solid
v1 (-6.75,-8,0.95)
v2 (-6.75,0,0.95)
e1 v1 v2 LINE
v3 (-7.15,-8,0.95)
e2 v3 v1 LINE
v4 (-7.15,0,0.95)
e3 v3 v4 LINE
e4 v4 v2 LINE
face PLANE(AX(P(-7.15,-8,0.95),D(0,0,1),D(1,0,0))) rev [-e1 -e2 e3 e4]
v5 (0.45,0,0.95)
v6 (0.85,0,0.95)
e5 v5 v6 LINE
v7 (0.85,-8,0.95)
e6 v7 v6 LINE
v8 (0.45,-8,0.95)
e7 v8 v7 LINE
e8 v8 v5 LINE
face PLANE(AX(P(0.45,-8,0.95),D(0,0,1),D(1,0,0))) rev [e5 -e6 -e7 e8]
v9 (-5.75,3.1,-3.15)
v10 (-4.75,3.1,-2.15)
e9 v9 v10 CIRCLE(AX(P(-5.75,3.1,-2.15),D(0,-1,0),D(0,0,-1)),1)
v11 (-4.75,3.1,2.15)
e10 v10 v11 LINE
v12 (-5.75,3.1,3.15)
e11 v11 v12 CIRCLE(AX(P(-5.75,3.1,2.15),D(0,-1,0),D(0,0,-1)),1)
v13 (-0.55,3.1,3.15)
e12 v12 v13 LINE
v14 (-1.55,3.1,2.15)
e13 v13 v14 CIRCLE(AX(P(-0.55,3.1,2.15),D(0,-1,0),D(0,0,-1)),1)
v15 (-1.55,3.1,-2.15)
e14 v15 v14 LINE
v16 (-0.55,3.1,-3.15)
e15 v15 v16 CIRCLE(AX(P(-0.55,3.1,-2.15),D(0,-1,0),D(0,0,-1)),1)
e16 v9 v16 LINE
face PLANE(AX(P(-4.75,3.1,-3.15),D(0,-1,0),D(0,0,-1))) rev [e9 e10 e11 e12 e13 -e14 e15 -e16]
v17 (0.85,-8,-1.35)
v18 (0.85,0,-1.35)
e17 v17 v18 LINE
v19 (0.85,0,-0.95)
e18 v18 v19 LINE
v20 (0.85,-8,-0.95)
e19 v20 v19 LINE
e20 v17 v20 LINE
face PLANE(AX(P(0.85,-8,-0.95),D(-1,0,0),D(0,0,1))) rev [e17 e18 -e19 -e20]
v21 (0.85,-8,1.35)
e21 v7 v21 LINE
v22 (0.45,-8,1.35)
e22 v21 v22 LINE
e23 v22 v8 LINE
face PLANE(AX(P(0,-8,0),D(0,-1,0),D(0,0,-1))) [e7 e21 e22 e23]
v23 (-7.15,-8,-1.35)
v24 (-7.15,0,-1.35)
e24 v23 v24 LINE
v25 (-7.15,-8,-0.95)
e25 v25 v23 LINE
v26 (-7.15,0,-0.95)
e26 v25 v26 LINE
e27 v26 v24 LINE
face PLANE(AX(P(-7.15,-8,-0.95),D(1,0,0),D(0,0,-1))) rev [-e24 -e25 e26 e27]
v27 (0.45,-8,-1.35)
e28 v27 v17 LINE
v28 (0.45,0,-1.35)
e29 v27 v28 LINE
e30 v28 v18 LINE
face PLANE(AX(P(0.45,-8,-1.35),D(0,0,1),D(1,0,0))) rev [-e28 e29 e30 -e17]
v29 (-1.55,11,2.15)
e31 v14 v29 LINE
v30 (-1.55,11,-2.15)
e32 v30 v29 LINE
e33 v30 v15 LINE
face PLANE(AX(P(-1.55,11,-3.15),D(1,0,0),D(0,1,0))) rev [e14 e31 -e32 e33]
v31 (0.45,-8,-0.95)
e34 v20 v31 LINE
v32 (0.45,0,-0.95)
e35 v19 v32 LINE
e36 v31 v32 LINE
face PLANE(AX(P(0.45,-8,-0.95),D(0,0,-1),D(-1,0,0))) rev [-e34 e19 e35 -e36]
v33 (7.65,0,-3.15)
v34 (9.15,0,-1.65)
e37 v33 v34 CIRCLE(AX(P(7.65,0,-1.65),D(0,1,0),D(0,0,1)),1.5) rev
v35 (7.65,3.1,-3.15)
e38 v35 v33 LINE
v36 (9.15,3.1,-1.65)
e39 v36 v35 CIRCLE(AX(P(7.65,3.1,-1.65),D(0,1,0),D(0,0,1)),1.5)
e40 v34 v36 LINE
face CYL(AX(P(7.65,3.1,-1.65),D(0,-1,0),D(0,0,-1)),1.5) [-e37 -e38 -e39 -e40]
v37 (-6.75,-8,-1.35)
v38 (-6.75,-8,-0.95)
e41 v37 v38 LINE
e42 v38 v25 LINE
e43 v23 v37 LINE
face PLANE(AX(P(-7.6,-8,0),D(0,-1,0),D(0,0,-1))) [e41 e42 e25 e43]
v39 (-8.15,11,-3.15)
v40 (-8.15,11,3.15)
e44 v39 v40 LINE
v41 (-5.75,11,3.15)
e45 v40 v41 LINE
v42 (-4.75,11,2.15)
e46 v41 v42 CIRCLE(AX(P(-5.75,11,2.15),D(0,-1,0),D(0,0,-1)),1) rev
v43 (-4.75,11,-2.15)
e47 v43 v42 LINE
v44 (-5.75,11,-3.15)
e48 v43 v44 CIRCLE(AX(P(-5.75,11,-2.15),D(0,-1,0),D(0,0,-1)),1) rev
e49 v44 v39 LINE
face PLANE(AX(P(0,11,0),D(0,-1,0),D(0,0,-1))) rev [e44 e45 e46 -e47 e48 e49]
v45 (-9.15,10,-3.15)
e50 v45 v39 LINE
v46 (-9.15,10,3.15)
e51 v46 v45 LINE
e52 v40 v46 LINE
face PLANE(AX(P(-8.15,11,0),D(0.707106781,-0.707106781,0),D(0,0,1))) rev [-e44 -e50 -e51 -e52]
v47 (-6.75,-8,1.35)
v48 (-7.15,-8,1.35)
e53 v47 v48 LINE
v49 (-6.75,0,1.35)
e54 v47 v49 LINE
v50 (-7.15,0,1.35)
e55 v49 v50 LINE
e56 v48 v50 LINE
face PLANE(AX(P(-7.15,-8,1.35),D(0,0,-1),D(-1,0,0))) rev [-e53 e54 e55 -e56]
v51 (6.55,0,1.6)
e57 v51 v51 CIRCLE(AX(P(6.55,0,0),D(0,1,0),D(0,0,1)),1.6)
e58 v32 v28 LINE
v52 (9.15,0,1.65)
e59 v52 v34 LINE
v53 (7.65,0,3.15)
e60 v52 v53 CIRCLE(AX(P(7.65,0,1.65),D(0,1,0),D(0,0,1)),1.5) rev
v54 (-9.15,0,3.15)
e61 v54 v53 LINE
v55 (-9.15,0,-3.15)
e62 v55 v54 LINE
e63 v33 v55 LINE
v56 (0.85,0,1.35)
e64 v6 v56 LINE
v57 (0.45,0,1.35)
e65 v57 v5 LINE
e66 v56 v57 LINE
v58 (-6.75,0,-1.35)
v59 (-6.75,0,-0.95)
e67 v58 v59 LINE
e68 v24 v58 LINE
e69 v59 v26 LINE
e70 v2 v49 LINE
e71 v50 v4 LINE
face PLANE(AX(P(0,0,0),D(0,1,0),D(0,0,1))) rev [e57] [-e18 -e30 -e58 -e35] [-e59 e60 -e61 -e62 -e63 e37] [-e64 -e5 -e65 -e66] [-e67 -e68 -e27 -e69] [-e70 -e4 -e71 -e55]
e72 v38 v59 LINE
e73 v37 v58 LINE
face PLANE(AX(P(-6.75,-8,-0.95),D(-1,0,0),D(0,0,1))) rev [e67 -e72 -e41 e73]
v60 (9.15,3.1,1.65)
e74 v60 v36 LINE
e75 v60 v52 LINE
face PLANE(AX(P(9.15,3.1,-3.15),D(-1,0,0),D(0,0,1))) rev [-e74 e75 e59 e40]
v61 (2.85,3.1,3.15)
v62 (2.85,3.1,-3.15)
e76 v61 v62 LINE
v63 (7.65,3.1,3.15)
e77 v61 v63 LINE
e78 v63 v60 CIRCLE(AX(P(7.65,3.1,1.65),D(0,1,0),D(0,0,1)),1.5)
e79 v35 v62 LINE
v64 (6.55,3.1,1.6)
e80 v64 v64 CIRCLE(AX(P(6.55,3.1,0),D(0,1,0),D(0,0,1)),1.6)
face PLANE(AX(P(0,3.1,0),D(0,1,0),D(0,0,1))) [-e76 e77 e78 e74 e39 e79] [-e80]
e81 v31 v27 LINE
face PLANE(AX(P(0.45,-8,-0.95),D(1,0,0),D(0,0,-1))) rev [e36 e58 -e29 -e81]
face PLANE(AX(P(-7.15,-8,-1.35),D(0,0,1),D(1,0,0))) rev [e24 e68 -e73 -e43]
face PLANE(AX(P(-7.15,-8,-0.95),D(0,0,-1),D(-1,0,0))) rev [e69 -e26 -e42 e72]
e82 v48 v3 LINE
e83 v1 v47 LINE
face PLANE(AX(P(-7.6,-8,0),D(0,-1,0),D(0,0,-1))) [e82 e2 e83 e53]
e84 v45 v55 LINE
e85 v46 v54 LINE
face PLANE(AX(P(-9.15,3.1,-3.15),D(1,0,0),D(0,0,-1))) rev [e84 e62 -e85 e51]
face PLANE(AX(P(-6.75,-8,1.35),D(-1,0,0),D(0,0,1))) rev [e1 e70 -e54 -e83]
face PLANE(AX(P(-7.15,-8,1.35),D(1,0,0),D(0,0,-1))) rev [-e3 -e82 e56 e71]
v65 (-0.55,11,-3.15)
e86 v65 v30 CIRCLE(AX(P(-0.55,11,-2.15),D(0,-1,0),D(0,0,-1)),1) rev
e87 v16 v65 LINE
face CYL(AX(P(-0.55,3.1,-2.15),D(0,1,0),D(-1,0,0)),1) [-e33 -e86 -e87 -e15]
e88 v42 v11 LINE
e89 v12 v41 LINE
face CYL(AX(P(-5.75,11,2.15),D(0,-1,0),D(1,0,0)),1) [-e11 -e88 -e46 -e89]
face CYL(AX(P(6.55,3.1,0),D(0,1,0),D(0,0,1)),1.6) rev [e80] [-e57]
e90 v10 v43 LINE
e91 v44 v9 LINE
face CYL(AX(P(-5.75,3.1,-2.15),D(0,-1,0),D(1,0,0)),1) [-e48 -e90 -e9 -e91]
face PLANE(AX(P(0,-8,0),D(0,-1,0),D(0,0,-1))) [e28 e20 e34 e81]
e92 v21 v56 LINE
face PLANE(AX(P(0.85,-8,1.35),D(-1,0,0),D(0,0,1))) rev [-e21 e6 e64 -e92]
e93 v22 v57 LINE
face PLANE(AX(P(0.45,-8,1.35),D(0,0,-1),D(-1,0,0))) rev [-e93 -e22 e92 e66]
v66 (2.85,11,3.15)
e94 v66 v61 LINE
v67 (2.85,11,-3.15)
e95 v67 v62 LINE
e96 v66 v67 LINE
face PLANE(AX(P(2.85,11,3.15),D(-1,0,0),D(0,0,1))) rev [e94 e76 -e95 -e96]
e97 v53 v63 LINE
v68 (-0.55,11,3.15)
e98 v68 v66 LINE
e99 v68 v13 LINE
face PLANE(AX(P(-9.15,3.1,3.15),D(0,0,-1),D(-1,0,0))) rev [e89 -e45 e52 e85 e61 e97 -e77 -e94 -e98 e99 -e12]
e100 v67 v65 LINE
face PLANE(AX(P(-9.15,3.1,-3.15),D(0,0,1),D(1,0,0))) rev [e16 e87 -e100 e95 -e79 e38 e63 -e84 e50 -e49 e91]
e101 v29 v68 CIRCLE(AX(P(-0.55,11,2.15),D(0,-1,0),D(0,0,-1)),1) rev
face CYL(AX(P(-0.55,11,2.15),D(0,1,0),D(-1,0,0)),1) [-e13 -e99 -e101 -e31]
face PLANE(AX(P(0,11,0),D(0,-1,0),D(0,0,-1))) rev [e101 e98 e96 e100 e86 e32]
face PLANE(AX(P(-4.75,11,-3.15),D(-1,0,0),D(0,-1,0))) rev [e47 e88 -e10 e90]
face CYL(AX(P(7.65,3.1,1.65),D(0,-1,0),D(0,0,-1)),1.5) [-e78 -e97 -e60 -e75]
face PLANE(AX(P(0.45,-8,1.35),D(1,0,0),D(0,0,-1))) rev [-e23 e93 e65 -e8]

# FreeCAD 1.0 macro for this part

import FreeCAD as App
import Part
import Sketcher


def edges_at(feature, points):
    """Names of the edges that pass closest to the given points."""
    edges = feature.Shape.Edges
    near = lambda p: min(range(len(edges)), key=lambda i: edges[i].distToShape(Part.Vertex(*p))[0])
    return sorted({f"Edge{near(p) + 1}" for p in points})

doc = App.newDocument("Part")
body = doc.addObject("PartDesign::Body", "Body")

# Sketch on XZ plane
sketch1 = body.newObject("Sketcher::SketchObject", "Sketch")
sketch1.AttachmentSupport = (doc.getObject("XZ_Plane"), [""])
sketch1.MapMode = "FlatFace"
sketch1.addGeometry([
    Part.LineSegment(App.Vector(-9, -3, 0), App.Vector(-9, 3, 0)),
    Part.LineSegment(App.Vector(-9, 3, 0), App.Vector(9, 3, 0)),
    Part.LineSegment(App.Vector(9, 3, 0), App.Vector(9, -3, 0)),
    Part.LineSegment(App.Vector(9, -3, 0), App.Vector(-9, -3, 0)),
], False)
sketch1.addConstraint([
    Sketcher.Constraint("Coincident", 0, 2, 1, 1),
    Sketcher.Constraint("Coincident", 1, 2, 2, 1),
    Sketcher.Constraint("Coincident", 2, 2, 3, 1),
    Sketcher.Constraint("Coincident", 3, 2, 0, 1),
    Sketcher.Constraint("Vertical", 0),
    Sketcher.Constraint("Horizontal", 1),
    Sketcher.Constraint("Vertical", 2),
    Sketcher.Constraint("Horizontal", 3),
    Sketcher.Constraint("Symmetric", 0, 2, 2, 2, -1, 1),
    Sketcher.Constraint("DistanceX", 1, 1, 1, 2, 18.3),
    Sketcher.Constraint("DistanceY", 0, 1, 0, 2, 6.3),
])
pad1 = body.newObject("PartDesign::Pad", "Pad")
pad1.Profile = sketch1
pad1.Length = 3.1
pad1.Reversed = True
doc.recompute()

fillet = body.newObject("PartDesign::Fillet", "Fillet")
fillet.Base = (pad1, edges_at(pad1, [(9.15, 1.55, 3.15), (9.15, 1.55, -3.15)]))
fillet.Radius = 1.5

# Sketch on XZ plane
sketch2 = body.newObject("Sketcher::SketchObject", "Sketch001")
sketch2.AttachmentSupport = (doc.getObject("XZ_Plane"), [""])
sketch2.MapMode = "FlatFace"
sketch2.AttachmentOffset = App.Placement(App.Vector(0, 0, -3.1), App.Rotation())
sketch2.addGeometry([
    Part.LineSegment(App.Vector(-9, -3, 0), App.Vector(-9, 3, 0)),
    Part.LineSegment(App.Vector(-9, 3, 0), App.Vector(3, 3, 0)),
    Part.LineSegment(App.Vector(3, 3, 0), App.Vector(3, -3, 0)),
    Part.LineSegment(App.Vector(3, -3, 0), App.Vector(-9, -3, 0)),
], False)
sketch2.addConstraint([
    Sketcher.Constraint("Coincident", 0, 2, 1, 1),
    Sketcher.Constraint("Coincident", 1, 2, 2, 1),
    Sketcher.Constraint("Coincident", 2, 2, 3, 1),
    Sketcher.Constraint("Coincident", 3, 2, 0, 1),
    Sketcher.Constraint("Vertical", 0),
    Sketcher.Constraint("Horizontal", 1),
    Sketcher.Constraint("Vertical", 2),
    Sketcher.Constraint("Horizontal", 3),
    Sketcher.Constraint("DistanceX", 1, 1, 1, 2, 12.0),
    Sketcher.Constraint("DistanceY", 0, 1, 0, 2, 6.3),
    Sketcher.Constraint("DistanceX", 0, 2, -1, 1, 9.15),
    Sketcher.Constraint("DistanceY", -1, 1, 0, 2, 3.15),
])
pad2 = body.newObject("PartDesign::Pad", "Pad001")
pad2.Profile = sketch2
pad2.Length = 7.9
pad2.Reversed = True

# Sketch on XZ plane
sketch3 = body.newObject("Sketcher::SketchObject", "Sketch002")
sketch3.AttachmentSupport = (doc.getObject("XZ_Plane"), [""])
sketch3.MapMode = "FlatFace"
sketch3.AttachmentOffset = App.Placement(App.Vector(0, 0, -3.1), App.Rotation())
sketch3.addGeometry(Part.Circle(App.Vector(6.5, 0, 0), App.Vector(0, 0, 1), 1.6), False)
sketch3.addConstraint([
    Sketcher.Constraint("PointOnObject", 0, 3, -1),
    Sketcher.Constraint("Diameter", 0, 3.2),
    Sketcher.Constraint("DistanceX", -1, 1, 0, 3, 6.55),
])
doc.recompute()
hole = body.newObject("PartDesign::Hole", "Hole")
hole.Profile = sketch3
hole.ThreadType = "None"
hole.Diameter = 3.2
hole.DepthType = "ThroughAll"
hole.Reversed = True

# Sketch on XY plane
sketch4 = body.newObject("Sketcher::SketchObject", "Sketch003")
sketch4.AttachmentSupport = (doc.getObject("XY_Plane"), [""])
sketch4.MapMode = "FlatFace"
sketch4.AttachmentOffset = App.Placement(App.Vector(0, 0, 3.15), App.Rotation())
sketch4.addGeometry([
    Part.LineSegment(App.Vector(-4.8, 11, 0), App.Vector(-4.8, 3.1, 0)),
    Part.LineSegment(App.Vector(-4.8, 3.1, 0), App.Vector(-1.6, 3.1, 0)),
    Part.LineSegment(App.Vector(-1.6, 3.1, 0), App.Vector(-1.6, 11, 0)),
    Part.LineSegment(App.Vector(-1.6, 11, 0), App.Vector(-4.8, 11, 0)),
], False)
sketch4.addConstraint([
    Sketcher.Constraint("Coincident", 0, 2, 1, 1),
    Sketcher.Constraint("Coincident", 1, 2, 2, 1),
    Sketcher.Constraint("Coincident", 2, 2, 3, 1),
    Sketcher.Constraint("Coincident", 3, 2, 0, 1),
    Sketcher.Constraint("Vertical", 0),
    Sketcher.Constraint("Horizontal", 1),
    Sketcher.Constraint("Vertical", 2),
    Sketcher.Constraint("Horizontal", 3),
    Sketcher.Constraint("DistanceX", 1, 1, 1, 2, 3.2),
    Sketcher.Constraint("DistanceY", 0, 2, 0, 1, 7.9),
    Sketcher.Constraint("DistanceY", -1, 1, 2, 2, 11.0),
    Sketcher.Constraint("DistanceX", 0, 2, -1, 1, 4.75),
])
pocket1 = body.newObject("PartDesign::Pocket", "Pocket")
pocket1.Profile = sketch4
pocket1.Type = "ThroughAll"
doc.recompute()

chamfer = body.newObject("PartDesign::Chamfer", "Chamfer")
chamfer.Base = (pocket1, edges_at(pocket1, [(-9.15, 11, 0)]))
chamfer.Size = 1
doc.recompute()

fillet2 = body.newObject("PartDesign::Fillet", "Fillet001")
fillet2.Base = (chamfer, edges_at(chamfer, [
    (-4.75, 7.05, -3.15),
    (-1.55, 7.05, -3.15),
    (-4.75, 7.05, 3.15),
    (-1.55, 7.05, 3.15),
]))
fillet2.Radius = 1

# Sketch on XZ plane
sketch5 = body.newObject("Sketcher::SketchObject", "Sketch004")
sketch5.AttachmentSupport = (doc.getObject("XZ_Plane"), [""])
sketch5.MapMode = "FlatFace"
sketch5.addGeometry([
    Part.LineSegment(App.Vector(0.45, 1.35, 0), App.Vector(0.45, 0.95, 0)),  # 0
    Part.LineSegment(App.Vector(0.45, 0.95, 0), App.Vector(0.85, 0.95, 0)),  # 1
    Part.LineSegment(App.Vector(0.85, 0.95, 0), App.Vector(0.85, 1.35, 0)),  # 2
    Part.LineSegment(App.Vector(0.85, 1.35, 0), App.Vector(0.45, 1.35, 0)),  # 3
    Part.LineSegment(App.Vector(0.45, -0.95, 0), App.Vector(0.45, -1.35, 0)),  # 4
    Part.LineSegment(App.Vector(0.45, -1.35, 0), App.Vector(0.85, -1.35, 0)),  # 5
    Part.LineSegment(App.Vector(0.85, -1.35, 0), App.Vector(0.85, -0.95, 0)),  # 6
    Part.LineSegment(App.Vector(0.85, -0.95, 0), App.Vector(0.45, -0.95, 0)),  # 7
], False)
sketch5.addConstraint([
    Sketcher.Constraint("Coincident", 0, 2, 1, 1),
    Sketcher.Constraint("Coincident", 1, 2, 2, 1),
    Sketcher.Constraint("Coincident", 2, 2, 3, 1),
    Sketcher.Constraint("Coincident", 3, 2, 0, 1),
    Sketcher.Constraint("Coincident", 4, 2, 5, 1),
    Sketcher.Constraint("Coincident", 5, 2, 6, 1),
    Sketcher.Constraint("Coincident", 6, 2, 7, 1),
    Sketcher.Constraint("Coincident", 7, 2, 4, 1),
    Sketcher.Constraint("Vertical", 0),
    Sketcher.Constraint("Horizontal", 1),
    Sketcher.Constraint("Vertical", 2),
    Sketcher.Constraint("Horizontal", 3),
    Sketcher.Constraint("Vertical", 4),
    Sketcher.Constraint("Horizontal", 5),
    Sketcher.Constraint("Vertical", 6),
    Sketcher.Constraint("Horizontal", 7),
    Sketcher.Constraint("Symmetric", 3, 2, 4, 2, -1),
    Sketcher.Constraint("Symmetric", 1, 2, 6, 2, -1),
    Sketcher.Constraint("Equal", 7, 0),
    Sketcher.Constraint("DistanceX", 1, 1, 1, 2, 0.4),
    Sketcher.Constraint("DistanceY", 4, 2, 0, 2, 2.3),
    Sketcher.Constraint("DistanceX", -1, 1, 0, 2, 0.45),
])
pad3 = body.newObject("PartDesign::Pad", "Pad002")
pad3.Profile = sketch5
pad3.Length = 8
doc.recompute()

linearpattern = body.newObject("PartDesign::LinearPattern", "LinearPattern")
linearpattern.Originals = [pad3]
linearpattern.Direction = (doc.getObject("X_Axis"), [""])
linearpattern.Mode = "offset"
linearpattern.Offset = 7.6
linearpattern.Occurrences = 2
linearpattern.Reversed = True
body.Tip = linearpattern

doc.recompute()
